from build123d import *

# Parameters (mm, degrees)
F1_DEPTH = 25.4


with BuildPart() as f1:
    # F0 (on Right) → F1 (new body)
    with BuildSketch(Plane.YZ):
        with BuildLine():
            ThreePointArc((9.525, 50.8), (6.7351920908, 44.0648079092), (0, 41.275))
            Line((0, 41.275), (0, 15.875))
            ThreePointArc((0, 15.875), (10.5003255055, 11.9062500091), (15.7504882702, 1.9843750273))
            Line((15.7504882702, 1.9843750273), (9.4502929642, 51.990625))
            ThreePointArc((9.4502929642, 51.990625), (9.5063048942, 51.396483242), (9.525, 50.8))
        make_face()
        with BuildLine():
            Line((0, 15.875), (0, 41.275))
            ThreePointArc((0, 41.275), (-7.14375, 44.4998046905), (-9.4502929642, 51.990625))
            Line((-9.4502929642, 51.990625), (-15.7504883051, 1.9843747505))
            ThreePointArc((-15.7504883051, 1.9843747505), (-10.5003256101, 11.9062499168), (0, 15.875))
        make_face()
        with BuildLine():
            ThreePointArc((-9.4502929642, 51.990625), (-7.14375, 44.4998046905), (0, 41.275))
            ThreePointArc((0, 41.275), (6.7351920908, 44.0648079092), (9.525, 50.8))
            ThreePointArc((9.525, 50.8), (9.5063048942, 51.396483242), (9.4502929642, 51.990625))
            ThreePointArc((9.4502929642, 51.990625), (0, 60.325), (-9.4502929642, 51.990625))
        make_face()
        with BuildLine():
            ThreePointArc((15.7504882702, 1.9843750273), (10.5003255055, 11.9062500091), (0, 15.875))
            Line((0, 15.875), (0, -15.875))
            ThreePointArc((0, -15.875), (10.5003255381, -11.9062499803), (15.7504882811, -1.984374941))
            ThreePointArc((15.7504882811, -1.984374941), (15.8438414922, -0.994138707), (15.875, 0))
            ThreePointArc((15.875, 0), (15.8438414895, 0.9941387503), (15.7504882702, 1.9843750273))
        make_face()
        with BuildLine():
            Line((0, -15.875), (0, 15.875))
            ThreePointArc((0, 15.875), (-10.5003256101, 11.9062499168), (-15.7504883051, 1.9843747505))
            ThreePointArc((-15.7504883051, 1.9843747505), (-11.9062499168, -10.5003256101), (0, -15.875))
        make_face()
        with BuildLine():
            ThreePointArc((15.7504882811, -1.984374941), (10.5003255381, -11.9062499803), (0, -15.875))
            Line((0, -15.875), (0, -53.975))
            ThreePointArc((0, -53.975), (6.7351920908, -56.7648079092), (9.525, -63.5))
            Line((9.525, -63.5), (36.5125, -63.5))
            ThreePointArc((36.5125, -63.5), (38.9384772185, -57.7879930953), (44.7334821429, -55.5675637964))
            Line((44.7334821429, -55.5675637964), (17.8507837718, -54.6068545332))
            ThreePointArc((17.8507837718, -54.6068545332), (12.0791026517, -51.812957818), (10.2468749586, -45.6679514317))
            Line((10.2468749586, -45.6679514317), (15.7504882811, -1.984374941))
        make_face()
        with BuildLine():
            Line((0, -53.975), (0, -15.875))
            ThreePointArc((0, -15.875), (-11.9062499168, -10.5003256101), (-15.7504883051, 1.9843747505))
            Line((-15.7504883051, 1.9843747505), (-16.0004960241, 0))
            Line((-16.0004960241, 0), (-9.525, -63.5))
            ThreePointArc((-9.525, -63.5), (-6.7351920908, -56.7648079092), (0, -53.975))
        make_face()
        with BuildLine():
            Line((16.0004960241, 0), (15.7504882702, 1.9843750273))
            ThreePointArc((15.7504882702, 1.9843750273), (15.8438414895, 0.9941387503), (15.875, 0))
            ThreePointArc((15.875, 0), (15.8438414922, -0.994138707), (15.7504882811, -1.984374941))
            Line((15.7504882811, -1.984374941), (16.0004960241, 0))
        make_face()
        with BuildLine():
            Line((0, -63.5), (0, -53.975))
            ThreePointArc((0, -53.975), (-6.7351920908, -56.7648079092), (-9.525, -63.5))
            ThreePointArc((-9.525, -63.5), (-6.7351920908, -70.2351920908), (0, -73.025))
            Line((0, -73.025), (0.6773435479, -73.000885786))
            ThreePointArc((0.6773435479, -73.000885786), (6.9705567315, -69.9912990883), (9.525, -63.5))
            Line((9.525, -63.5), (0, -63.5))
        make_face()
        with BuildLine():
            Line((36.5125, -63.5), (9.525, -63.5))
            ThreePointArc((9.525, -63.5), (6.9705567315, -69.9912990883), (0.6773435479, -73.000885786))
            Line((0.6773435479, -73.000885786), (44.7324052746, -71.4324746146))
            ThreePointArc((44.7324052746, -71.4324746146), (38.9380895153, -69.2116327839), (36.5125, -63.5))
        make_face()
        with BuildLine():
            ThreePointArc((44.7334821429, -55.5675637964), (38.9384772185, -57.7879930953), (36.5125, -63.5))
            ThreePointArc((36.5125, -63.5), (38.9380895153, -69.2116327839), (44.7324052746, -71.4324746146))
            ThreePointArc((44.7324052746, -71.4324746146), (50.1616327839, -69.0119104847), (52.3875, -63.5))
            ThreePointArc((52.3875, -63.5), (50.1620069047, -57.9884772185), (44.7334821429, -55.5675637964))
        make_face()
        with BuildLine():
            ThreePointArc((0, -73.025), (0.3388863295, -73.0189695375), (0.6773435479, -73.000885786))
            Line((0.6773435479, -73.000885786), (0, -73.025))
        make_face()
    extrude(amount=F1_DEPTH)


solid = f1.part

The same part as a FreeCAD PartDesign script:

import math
import FreeCAD as App
import Part
import Sketcher
Q = App.Units.Quantity

doc = App.newDocument("Part")
body = doc.addObject("PartDesign::Body", "Body")

sketch1 = doc.addObject("Sketcher::SketchObject", "Sketch")
body.addObject(sketch1)
sketch1.AttachmentSupport = (doc.YZ_Plane, [""])
sketch1.MapMode = "FlatFace"
sketch1.addGeometry([
    Part.LineSegment(App.Vector(0.677344, -73.000886, 0), App.Vector(44.732405, -71.432475, 0)),
    Part.ArcOfCircle(Part.Circle(App.Vector(44.45, -63.5, 0), App.Vector(0, 0, 1), 7.9375), math.radians(-87.961065), math.radians(0)),
    Part.ArcOfCircle(Part.Circle(App.Vector(44.45, -63.5, 0), App.Vector(0, 0, 1), 7.9375), math.radians(0), math.radians(87.953287)),
    Part.LineSegment(App.Vector(44.733482, -55.567564, 0), App.Vector(17.850784, -54.606855, 0)),
    Part.ArcOfCircle(Part.Circle(App.Vector(18.134719, -46.661726, 0), App.Vector(0, 0, 1), 7.9502), math.radians(172.819244), math.radians(267.953287)),
    Part.LineSegment(App.Vector(10.246875, -45.667951, 0), App.Vector(15.750488, -1.984375, 0)),
    Part.LineSegment(App.Vector(15.750488, -1.984375, 0), App.Vector(16.000496, 0, 0)),
    Part.LineSegment(App.Vector(16.000496, 0, 0), App.Vector(15.750488, 1.984375, 0)),
    Part.LineSegment(App.Vector(15.750488, 1.984375, 0), App.Vector(9.450293, 51.990625, 0)),
    Part.ArcOfCircle(Part.Circle(App.Vector(0, 50.8, 0), App.Vector(0, 0, 1), 9.525), math.radians(7.180756), math.radians(172.819244)),
    Part.LineSegment(App.Vector(-9.450293, 51.990625, 0), App.Vector(-15.750488, 1.984375, 0)),
    Part.LineSegment(App.Vector(-15.750488, 1.984375, 0), App.Vector(-16.000496, 0, 0)),
    Part.LineSegment(App.Vector(-16.000496, 0, 0), App.Vector(-9.525, -63.5, 0)),
    Part.ArcOfCircle(Part.Circle(App.Vector(0, -63.5, 0), App.Vector(0, 0, 1), 9.525), math.radians(180), math.radians(270)),
    Part.ArcOfCircle(Part.Circle(App.Vector(0, -63.5, 0), App.Vector(0, 0, 1), 9.525), math.radians(-90), math.radians(-85.92213)),
    Part.ArcOfCircle(Part.Circle(App.Vector(0, -63.5, 0), App.Vector(0, 0, 1), 9.525), math.radians(0), math.radians(90)),
    Part.LineSegment(App.Vector(9.525, -63.5, 0), App.Vector(0, -63.5, 0)),
    Part.LineSegment(App.Vector(0, -63.5, 0), App.Vector(0, -53.975, 0)),
], False)
sketch1.addConstraint([
    Sketcher.Constraint("Tangent", 0, 2, 1, 1),
    Sketcher.Constraint("Tangent", 1, 2, 2, 1),
    Sketcher.Constraint("Tangent", 2, 2, 3, 1),
    Sketcher.Constraint("Tangent", 3, 2, 4, 2),
    Sketcher.Constraint("Tangent", 4, 1, 5, 1),
    Sketcher.Constraint("Coincident", 5, 2, 6, 1),
    Sketcher.Constraint("Coincident", 6, 2, 7, 1),
    Sketcher.Constraint("Coincident", 7, 2, 8, 1),
    Sketcher.Constraint("Tangent", 8, 2, 9, 1),
    Sketcher.Constraint("Tangent", 9, 2, 10, 1),
    Sketcher.Constraint("Coincident", 10, 2, 11, 1),
    Sketcher.Constraint("Coincident", 11, 2, 12, 1),
    Sketcher.Constraint("Coincident", 12, 2, 13, 1),
    Sketcher.Constraint("Tangent", 13, 2, 14, 1),
    Sketcher.Constraint("Coincident", 14, 2, 0, 1),
    Sketcher.Constraint("Coincident", 15, 1, 16, 1),
    Sketcher.Constraint("Coincident", 16, 2, 17, 1),
    Sketcher.Constraint("Coincident", 17, 2, 15, 2),
    Sketcher.Constraint("Horizontal", 16),
    Sketcher.Constraint("Vertical", 17),
    Sketcher.Constraint("Coincident", 15, 3, 13, 3),
    Sketcher.Constraint("Coincident", 16, 2, 13, 3),
    Sketcher.Constraint("Equal", 1, 2),
    Sketcher.Constraint("Equal", 9, 13),
    Sketcher.Constraint("Equal", 13, 14),
    Sketcher.Constraint("Equal", 14, 15),
    Sketcher.Constraint("Symmetric", 5, 2, 10, 2, -1, 1),
    Sketcher.Constraint("Symmetric", 6, 2, 11, 2, -1, 1),
    Sketcher.Constraint("Symmetric", 8, 2, 9, 2, -2),
    Sketcher.Constraint("Symmetric", 12, 2, 15, 1, -2),
    Sketcher.Constraint("PointOnObject", 6, 2, -1),
    Sketcher.Constraint("PointOnObject", 13, 2, -2),
    Sketcher.Constraint("Parallel", 5, 6),
    Sketcher.Constraint("Parallel", 7, 8),
    Sketcher.Constraint("Horizontal", 2, 3, 13, 3),
    Sketcher.Constraint("Horizontal", 15, 3, 1, 2),
    Sketcher.Constraint("Horizontal", 7, 2, 10, 2),
    Sketcher.Constraint("DistanceY", -1, 1, 9, 3, Q("2 in")),
    Sketcher.Constraint("Radius", 1, Q("0.3125 in")),
    Sketcher.Constraint("Radius", 4, Q("0.313 in")),
    Sketcher.Constraint("Radius", 9, Q("0.375 in")),
    Sketcher.Constraint("DistanceY", 1, 3, -1, 1, Q("2.5 in")),
    Sketcher.Constraint("DistanceX", -1, 1, 1, 3, Q("1.75 in")),
    Sketcher.Constraint("DistanceY", 5, 2, -1, 1, Q("0.078125 in")),
    Sketcher.Constraint("DistanceY", -1, 1, 8, 2, Q("2.046875 in")),
    Sketcher.Constraint("DistanceX", 3, 2, 2, 2, Q("26.882698 mm")),
    Sketcher.Constraint("Distance", 0, Q("44.082972 mm")),
])
pad1 = doc.addObject("PartDesign::Pad", "Pad")
body.addObject(pad1)
pad1.Profile = sketch1
pad1.Length = Q("1 in")

doc.recompute()
